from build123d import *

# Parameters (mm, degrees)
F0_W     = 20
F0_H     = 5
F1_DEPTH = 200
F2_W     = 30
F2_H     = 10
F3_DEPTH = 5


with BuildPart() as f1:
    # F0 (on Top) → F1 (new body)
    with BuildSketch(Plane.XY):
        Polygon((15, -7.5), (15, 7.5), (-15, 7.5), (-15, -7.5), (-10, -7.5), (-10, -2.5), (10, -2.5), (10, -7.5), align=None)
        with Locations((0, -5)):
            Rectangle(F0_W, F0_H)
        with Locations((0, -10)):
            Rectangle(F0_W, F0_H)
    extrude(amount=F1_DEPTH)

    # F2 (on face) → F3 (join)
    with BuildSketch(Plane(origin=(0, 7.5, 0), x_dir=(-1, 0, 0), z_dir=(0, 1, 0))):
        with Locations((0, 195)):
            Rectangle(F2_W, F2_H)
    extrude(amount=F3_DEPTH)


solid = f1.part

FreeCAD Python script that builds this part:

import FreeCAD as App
import Part
import Sketcher


def add_polygon(sketch, points):
    """Adds a closed chain of lines whose ends are joined by coincident constraints."""
    first, n = sketch.GeometryCount, len(points)
    for a, b in zip(points, points[1:] + points[:1]):
        sketch.addGeometry(Part.LineSegment(App.Vector(*a, 0), App.Vector(*b, 0)), False)
    for i in range(n):
        sketch.addConstraint(Sketcher.Constraint("Coincident", first + i, 2, first + (i + 1) % n, 1))

doc = App.newDocument("Part")
body = doc.addObject("PartDesign::Body", "Body")

# Sketch on XY plane
sketch1 = body.newObject("Sketcher::SketchObject", "Sketch")
sketch1.AttachmentSupport = (doc.getObject("XY_Plane"), [""])
sketch1.MapMode = "FlatFace"
add_polygon(sketch1, [(15, -8), (15, 8), (-15, 8), (-15, -8), (-10, -8), (-10, -12), (10, -12), (10, -8)])  # lines 0-7
sketch1.addConstraint([
    Sketcher.Constraint("Vertical", 0),
    Sketcher.Constraint("Horizontal", 1),
    Sketcher.Constraint("Vertical", 2),
    Sketcher.Constraint("Horizontal", 3),
    Sketcher.Constraint("Vertical", 4),
    Sketcher.Constraint("Horizontal", 5),
    Sketcher.Constraint("Vertical", 6),
    Sketcher.Constraint("Horizontal", 7),
    Sketcher.Constraint("Symmetric", 0, 2, 2, 2, -1, 1),
    Sketcher.Constraint("Symmetric", 3, 2, 6, 2, -2),
    Sketcher.Constraint("Equal", 7, 4),
    Sketcher.Constraint("DistanceX", 1, 2, 1, 1, 30.0),
    Sketcher.Constraint("DistanceX", 3, 1, 3, 2, 5.0),
    Sketcher.Constraint("DistanceY", 0, 1, 0, 2, 15.0),
])
pad1 = body.newObject("PartDesign::Pad", "Pad")
pad1.Profile = sketch1
pad1.Length = 200

# Sketch on XZ plane
sketch2 = body.newObject("Sketcher::SketchObject", "Sketch001")
sketch2.AttachmentSupport = (doc.getObject("XZ_Plane"), [""])
sketch2.MapMode = "FlatFace"
sketch2.AttachmentOffset = App.Placement(App.Vector(0, 0, -7.5), App.Rotation())
add_polygon(sketch2, [(15, 200), (15, 190), (-15, 190), (-15, 200)])  # lines 0-3
sketch2.addConstraint([
    Sketcher.Constraint("Vertical", 0),
    Sketcher.Constraint("Horizontal", 1),
    Sketcher.Constraint("Vertical", 2),
    Sketcher.Constraint("Horizontal", 3),
    Sketcher.Constraint("DistanceX", 1, 2, 1, 1, 30.0),
    Sketcher.Constraint("DistanceY", 0, 2, 0, 1, 10.0),
    Sketcher.Constraint("DistanceX", -1, 1, 0, 2, 15.0),
    Sketcher.Constraint("DistanceY", -1, 1, 0, 2, 190.0),
])
pad2 = body.newObject("PartDesign::Pad", "Pad001")
pad2.Profile = sketch2
pad2.Length = 5
pad2.Reversed = True

doc.recompute()
